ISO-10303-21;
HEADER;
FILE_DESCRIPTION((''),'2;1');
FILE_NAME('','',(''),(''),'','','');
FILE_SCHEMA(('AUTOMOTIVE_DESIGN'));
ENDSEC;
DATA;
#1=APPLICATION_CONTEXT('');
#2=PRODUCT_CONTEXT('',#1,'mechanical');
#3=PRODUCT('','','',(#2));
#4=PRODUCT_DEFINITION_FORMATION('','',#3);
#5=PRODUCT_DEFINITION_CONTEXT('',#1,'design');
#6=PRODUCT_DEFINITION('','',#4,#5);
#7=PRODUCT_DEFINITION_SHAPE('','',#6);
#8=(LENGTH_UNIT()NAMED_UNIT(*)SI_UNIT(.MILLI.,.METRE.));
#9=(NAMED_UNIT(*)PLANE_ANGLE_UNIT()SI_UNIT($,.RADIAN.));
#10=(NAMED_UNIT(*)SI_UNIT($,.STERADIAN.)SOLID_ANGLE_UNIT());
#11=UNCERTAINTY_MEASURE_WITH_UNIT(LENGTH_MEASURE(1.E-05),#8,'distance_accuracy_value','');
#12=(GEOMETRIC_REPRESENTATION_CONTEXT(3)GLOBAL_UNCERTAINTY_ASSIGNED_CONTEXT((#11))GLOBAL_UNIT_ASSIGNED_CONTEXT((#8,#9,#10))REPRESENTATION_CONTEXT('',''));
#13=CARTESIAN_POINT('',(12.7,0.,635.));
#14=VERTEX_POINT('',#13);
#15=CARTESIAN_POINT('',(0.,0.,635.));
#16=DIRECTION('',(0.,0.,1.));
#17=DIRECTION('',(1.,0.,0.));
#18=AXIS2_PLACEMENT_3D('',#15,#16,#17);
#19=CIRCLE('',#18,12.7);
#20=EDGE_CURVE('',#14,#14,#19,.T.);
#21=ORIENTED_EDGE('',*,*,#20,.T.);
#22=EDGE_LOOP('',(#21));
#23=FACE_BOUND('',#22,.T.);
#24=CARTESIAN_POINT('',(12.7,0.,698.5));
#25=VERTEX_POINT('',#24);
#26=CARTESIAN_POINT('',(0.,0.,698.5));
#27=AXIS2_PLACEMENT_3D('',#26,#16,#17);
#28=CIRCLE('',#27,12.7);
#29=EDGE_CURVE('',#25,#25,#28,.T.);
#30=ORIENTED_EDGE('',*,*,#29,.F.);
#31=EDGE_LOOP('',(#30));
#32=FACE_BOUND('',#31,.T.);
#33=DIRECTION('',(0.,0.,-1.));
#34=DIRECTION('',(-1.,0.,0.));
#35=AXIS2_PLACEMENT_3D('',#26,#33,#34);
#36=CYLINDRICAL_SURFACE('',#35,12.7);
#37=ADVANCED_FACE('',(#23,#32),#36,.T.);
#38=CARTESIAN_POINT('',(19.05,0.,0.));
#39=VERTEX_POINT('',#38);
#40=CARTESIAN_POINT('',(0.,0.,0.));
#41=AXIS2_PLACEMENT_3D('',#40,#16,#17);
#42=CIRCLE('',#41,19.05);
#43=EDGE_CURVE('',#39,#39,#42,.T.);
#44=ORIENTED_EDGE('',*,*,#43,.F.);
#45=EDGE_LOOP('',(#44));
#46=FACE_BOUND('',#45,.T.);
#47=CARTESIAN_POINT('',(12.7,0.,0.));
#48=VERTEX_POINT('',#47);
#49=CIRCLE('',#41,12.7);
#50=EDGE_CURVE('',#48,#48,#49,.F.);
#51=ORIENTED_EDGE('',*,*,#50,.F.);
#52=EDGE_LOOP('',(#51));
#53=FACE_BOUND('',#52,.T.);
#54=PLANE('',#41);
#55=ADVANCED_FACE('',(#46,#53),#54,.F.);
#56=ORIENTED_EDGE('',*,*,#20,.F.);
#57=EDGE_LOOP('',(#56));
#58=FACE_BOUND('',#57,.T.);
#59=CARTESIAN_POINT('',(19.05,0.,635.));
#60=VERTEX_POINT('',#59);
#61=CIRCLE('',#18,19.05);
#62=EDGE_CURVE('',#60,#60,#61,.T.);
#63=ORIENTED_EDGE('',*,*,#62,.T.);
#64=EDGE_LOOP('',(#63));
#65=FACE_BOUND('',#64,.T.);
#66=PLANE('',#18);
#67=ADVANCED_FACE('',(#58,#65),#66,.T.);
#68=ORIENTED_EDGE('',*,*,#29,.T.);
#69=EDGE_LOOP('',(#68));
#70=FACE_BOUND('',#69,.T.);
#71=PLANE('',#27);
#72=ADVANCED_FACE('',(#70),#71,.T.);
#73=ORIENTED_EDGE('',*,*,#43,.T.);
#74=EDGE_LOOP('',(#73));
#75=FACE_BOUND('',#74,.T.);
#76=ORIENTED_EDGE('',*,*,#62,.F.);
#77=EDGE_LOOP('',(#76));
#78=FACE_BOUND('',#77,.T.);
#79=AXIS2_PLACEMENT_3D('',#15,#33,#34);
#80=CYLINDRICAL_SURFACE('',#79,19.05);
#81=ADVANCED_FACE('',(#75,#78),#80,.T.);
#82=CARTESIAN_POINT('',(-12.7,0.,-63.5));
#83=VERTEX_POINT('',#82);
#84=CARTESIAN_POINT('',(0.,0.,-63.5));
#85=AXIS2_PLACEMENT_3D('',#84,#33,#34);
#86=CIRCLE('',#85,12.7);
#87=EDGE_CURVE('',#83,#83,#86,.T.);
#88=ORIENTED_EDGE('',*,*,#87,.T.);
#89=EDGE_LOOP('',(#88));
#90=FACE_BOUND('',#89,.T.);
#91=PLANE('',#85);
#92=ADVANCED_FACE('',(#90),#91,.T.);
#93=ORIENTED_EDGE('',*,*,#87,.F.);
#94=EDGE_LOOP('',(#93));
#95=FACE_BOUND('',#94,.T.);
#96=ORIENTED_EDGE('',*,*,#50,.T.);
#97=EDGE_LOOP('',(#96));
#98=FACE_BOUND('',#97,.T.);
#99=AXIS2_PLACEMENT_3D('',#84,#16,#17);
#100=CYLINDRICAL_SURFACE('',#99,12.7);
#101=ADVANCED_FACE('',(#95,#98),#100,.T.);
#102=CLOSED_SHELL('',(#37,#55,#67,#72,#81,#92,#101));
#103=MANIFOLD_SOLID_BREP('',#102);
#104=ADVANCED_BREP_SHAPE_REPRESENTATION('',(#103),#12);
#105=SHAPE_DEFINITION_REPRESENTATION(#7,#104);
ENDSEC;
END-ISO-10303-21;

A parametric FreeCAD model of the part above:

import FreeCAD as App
import Part
import Sketcher
from FreeCAD import Vector
Q = App.Units.Quantity

doc = App.newDocument("Part")
body = doc.addObject("PartDesign::Body", "Body")

sketch1 = body.newObject("Sketcher::SketchObject", "Sketch")
sketch1.AttachmentSupport = (doc.getObject("XY_Plane"), [""])
sketch1.MapMode = "FlatFace"
sketch1.addGeometry(Part.Circle(Vector(0, 0, 0), Vector(0, 0, 1), 19.05), False)
sketch1.addConstraint(Sketcher.Constraint("Coincident", 0, 3, -1, 1))
sketch1.addConstraint(Sketcher.Constraint("Diameter", 0, Q("1.5 in")))
pad1 = body.newObject("PartDesign::Pad", "Pad")
pad1.Profile = sketch1
pad1.Length = Q("25 in")

sketch2 = body.newObject("Sketcher::SketchObject", "Sketch001")
sketch2.AttachmentSupport = (doc.getObject("XY_Plane"), [""])
sketch2.MapMode = "FlatFace"
sketch2.AttachmentOffset = App.Placement(Vector(0, 0, 25 * 25.4), App.Rotation())
sketch2.addGeometry(Part.Circle(Vector(0, 0, 0), Vector(0, 0, 1), 12.7), False)
sketch2.addConstraint(Sketcher.Constraint("Coincident", 0, 3, -1, 1))
sketch2.addConstraint(Sketcher.Constraint("Diameter", 0, Q("1 in")))
pad2 = body.newObject("PartDesign::Pad", "Pad001")
pad2.Profile = sketch2
pad2.Length = Q("2.5 in")

sketch3 = body.newObject("Sketcher::SketchObject", "Sketch002")
sketch3.AttachmentSupport = (doc.getObject("XY_Plane"), [""])
sketch3.MapMode = "FlatFace"
sketch3.addGeometry(Part.Circle(Vector(0, 0, 0), Vector(0, 0, 1), 12.7), False)
sketch3.addConstraint(Sketcher.Constraint("Coincident", 0, 3, -1, 1))
sketch3.addConstraint(Sketcher.Constraint("Diameter", 0, Q("1 in")))
pad3 = body.newObject("PartDesign::Pad", "Pad002")
pad3.Profile = sketch3
pad3.Length = Q("2.5 in")
pad3.Reversed = True

doc.recompute()
